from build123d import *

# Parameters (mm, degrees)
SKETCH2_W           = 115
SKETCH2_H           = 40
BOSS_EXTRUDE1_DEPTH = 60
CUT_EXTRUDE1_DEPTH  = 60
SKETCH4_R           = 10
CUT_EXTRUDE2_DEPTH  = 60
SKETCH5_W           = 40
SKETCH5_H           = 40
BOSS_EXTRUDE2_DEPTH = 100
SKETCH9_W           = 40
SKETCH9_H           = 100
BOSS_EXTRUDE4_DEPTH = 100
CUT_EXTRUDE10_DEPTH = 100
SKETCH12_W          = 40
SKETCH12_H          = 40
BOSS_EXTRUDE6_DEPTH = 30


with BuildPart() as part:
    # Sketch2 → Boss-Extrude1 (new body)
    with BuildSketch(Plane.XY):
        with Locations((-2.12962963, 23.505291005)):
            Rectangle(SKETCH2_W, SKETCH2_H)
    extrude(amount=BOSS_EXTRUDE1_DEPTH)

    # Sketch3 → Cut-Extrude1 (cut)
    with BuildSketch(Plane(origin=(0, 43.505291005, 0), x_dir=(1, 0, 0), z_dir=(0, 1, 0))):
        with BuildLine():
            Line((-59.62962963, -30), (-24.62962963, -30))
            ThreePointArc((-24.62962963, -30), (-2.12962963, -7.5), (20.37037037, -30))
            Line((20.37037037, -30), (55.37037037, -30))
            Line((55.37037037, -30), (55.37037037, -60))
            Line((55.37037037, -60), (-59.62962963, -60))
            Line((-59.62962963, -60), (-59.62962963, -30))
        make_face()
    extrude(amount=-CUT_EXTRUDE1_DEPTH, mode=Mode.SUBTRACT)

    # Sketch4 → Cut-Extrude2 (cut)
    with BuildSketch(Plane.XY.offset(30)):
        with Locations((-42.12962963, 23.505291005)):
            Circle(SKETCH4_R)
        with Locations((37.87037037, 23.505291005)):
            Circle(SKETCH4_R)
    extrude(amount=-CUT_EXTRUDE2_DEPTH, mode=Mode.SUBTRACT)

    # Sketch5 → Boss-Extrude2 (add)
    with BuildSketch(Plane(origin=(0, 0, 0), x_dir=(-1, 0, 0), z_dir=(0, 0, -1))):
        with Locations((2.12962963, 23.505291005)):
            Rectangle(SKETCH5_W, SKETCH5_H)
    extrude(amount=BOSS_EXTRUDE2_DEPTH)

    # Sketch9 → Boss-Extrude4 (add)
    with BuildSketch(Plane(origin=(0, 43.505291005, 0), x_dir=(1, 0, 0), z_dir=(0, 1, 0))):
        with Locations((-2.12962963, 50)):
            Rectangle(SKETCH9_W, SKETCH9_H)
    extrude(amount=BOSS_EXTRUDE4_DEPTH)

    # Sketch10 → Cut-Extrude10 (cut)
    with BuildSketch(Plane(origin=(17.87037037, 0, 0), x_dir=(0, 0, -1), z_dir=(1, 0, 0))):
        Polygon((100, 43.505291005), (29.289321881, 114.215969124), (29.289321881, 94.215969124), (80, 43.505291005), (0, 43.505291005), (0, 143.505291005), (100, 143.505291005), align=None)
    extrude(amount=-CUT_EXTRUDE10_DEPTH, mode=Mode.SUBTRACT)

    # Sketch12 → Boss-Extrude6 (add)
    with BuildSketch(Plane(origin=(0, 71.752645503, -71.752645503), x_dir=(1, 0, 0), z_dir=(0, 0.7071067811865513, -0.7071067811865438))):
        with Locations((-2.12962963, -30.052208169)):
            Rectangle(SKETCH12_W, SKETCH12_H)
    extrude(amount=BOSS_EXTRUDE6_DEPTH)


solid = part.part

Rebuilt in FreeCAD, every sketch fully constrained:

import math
import FreeCAD as App
import Part
import Sketcher
Q = App.Units.Quantity


def add_polygon(sketch, points):
    """Adds a closed chain of lines whose ends are joined by coincident constraints."""
    first, n = sketch.GeometryCount, len(points)
    for a, b in zip(points, points[1:] + points[:1]):
        sketch.addGeometry(Part.LineSegment(App.Vector(*a, 0), App.Vector(*b, 0)), False)
    for i in range(n):
        sketch.addConstraint(Sketcher.Constraint("Coincident", first + i, 2, first + (i + 1) % n, 1))

doc = App.newDocument("Part")
body = doc.addObject("PartDesign::Body", "Body")

sketch1 = body.newObject("Sketcher::SketchObject", "Sketch")
sketch1.AttachmentSupport = (doc.getObject("XY_Plane"), [""])
sketch1.MapMode = "FlatFace"
add_polygon(sketch1, [(-59.62963, 43.505291), (-59.62963, 3.505291), (55.37037, 3.505291), (55.37037, 43.505291)])
sketch1.addConstraint([
    Sketcher.Constraint("Vertical", 0),
    Sketcher.Constraint("Horizontal", 1),
    Sketcher.Constraint("Vertical", 2),
    Sketcher.Constraint("Horizontal", 3),
    Sketcher.Constraint("DistanceX", 1, 1, 1, 2, Q("115 mm")),
    Sketcher.Constraint("DistanceY", 0, 2, 0, 1, Q("40 mm")),
    Sketcher.Constraint("DistanceX", 0, 2, -1, 1, Q("59.62963 mm")),
    Sketcher.Constraint("DistanceY", -1, 1, 0, 2, Q("3.505291 mm")),
])
pad1 = body.newObject("PartDesign::Pad", "Pad")
pad1.Profile = sketch1
pad1.Length = 60

sketch2 = body.newObject("Sketcher::SketchObject", "Sketch001")
sketch2.AttachmentSupport = (doc.getObject("XZ_Plane"), [""])
sketch2.MapMode = "FlatFace"
sketch2.AttachmentOffset = App.Placement(App.Vector(0, 0, -43.505291), App.Rotation())
sketch2.addGeometry([
    Part.LineSegment(App.Vector(-24.62963, 30, 0), App.Vector(-59.62963, 30, 0)),
    Part.LineSegment(App.Vector(-59.62963, 30, 0), App.Vector(-59.62963, 60, 0)),
    Part.LineSegment(App.Vector(-59.62963, 60, 0), App.Vector(55.37037, 60, 0)),
    Part.LineSegment(App.Vector(55.37037, 60, 0), App.Vector(55.37037, 30, 0)),
    Part.LineSegment(App.Vector(55.37037, 30, 0), App.Vector(20.37037, 30, 0)),
    Part.ArcOfCircle(Part.Circle(App.Vector(-2.12963, 30, 0), App.Vector(0, 0, 1), 22.5), math.radians(180), math.radians(360)),
], False)
sketch2.addConstraint([
    Sketcher.Constraint("Coincident", 0, 2, 1, 1),
    Sketcher.Constraint("Coincident", 1, 2, 2, 1),
    Sketcher.Constraint("Coincident", 2, 2, 3, 1),
    Sketcher.Constraint("Coincident", 3, 2, 4, 1),
    Sketcher.Constraint("Coincident", 4, 2, 5, 2),
    Sketcher.Constraint("Coincident", 5, 1, 0, 1),
    Sketcher.Constraint("Horizontal", 0),
    Sketcher.Constraint("Vertical", 1),
    Sketcher.Constraint("Horizontal", 2),
    Sketcher.Constraint("Vertical", 3),
    Sketcher.Constraint("Horizontal", 4),
    Sketcher.Constraint("Horizontal", 5, 3, 0, 2),
    Sketcher.Constraint("Horizontal", 0, 2, 3, 2),
    Sketcher.Constraint("Equal", 0, 4),
    Sketcher.Constraint("Radius", 5, Q("22.5 mm")),
    Sketcher.Constraint("DistanceX", 0, 2, 0, 1, Q("35 mm")),
    Sketcher.Constraint("DistanceY", 1, 1, 1, 2, Q("30 mm")),
    Sketcher.Constraint("DistanceY", -1, 1, 5, 3, Q("30 mm")),
    Sketcher.Constraint("DistanceX", 5, 3, -1, 1, Q("2.12963 mm")),
])
pocket1 = body.newObject("PartDesign::Pocket", "Pocket")
pocket1.Profile = sketch2
pocket1.Length = 60
pocket1.Reversed = True

sketch3 = body.newObject("Sketcher::SketchObject", "Sketch002")
sketch3.AttachmentSupport = (doc.getObject("XY_Plane"), [""])
sketch3.MapMode = "FlatFace"
sketch3.AttachmentOffset = App.Placement(App.Vector(0, 0, 30), App.Rotation())
sketch3.addGeometry([
    Part.Circle(App.Vector(-42.12963, 23.505291, 0), App.Vector(0, 0, 1), 10),
    Part.Circle(App.Vector(37.87037, 23.505291, 0), App.Vector(0, 0, 1), 10),
], False)
sketch3.addConstraint([
    Sketcher.Constraint("Equal", 0, 1),
    Sketcher.Constraint("Horizontal", 0, 3, 1, 3),
    Sketcher.Constraint("Diameter", 0, Q("20 mm")),
    Sketcher.Constraint("DistanceX", 0, 3, 1, 3, Q("80 mm")),
    Sketcher.Constraint("DistanceX", 0, 3, -1, 1, Q("42.12963 mm")),
    Sketcher.Constraint("DistanceY", -1, 1, 0, 3, Q("23.505291 mm")),
])
pocket2 = body.newObject("PartDesign::Pocket", "Pocket001")
pocket2.Profile = sketch3
pocket2.Length = 60

sketch4 = body.newObject("Sketcher::SketchObject", "Sketch003")
sketch4.AttachmentSupport = (doc.getObject("XY_Plane"), [""])
sketch4.MapMode = "FlatFace"
add_polygon(sketch4, [(17.87037, 43.505291), (17.87037, 3.505291), (-22.12963, 3.505291), (-22.12963, 43.505291)])
sketch4.addConstraint([
    Sketcher.Constraint("Vertical", 0),
    Sketcher.Constraint("Horizontal", 1),
    Sketcher.Constraint("Vertical", 2),
    Sketcher.Constraint("Horizontal", 3),
    Sketcher.Constraint("Equal", 3, 0),
    Sketcher.Constraint("DistanceX", 1, 2, 1, 1, Q("40 mm")),
    Sketcher.Constraint("DistanceX", -1, 1, 0, 2, Q("17.87037 mm")),
    Sketcher.Constraint("DistanceY", -1, 1, 0, 2, Q("3.505291 mm")),
])
pad2 = body.newObject("PartDesign::Pad", "Pad001")
pad2.Profile = sketch4
pad2.Length = 100
pad2.Reversed = True

sketch5 = body.newObject("Sketcher::SketchObject", "Sketch004")
sketch5.AttachmentSupport = (doc.getObject("XZ_Plane"), [""])
sketch5.MapMode = "FlatFace"
sketch5.AttachmentOffset = App.Placement(App.Vector(0, 0, -43.505291), App.Rotation())
add_polygon(sketch5, [(-22.12963, -100), (-22.12963, 0), (17.87037, 0), (17.87037, -100)])
sketch5.addConstraint([
    Sketcher.Constraint("Vertical", 0),
    Sketcher.Constraint("Horizontal", 1),
    Sketcher.Constraint("Vertical", 2),
    Sketcher.Constraint("Horizontal", 3),
    Sketcher.Constraint("PointOnObject", 0, 2, -1),
    Sketcher.Constraint("DistanceX", 1, 1, 1, 2, Q("40 mm")),
    Sketcher.Constraint("DistanceY", 0, 1, 0, 2, Q("100 mm")),
    Sketcher.Constraint("DistanceX", 0, 2, -1, 1, Q("22.12963 mm")),
])
pad3 = body.newObject("PartDesign::Pad", "Pad002")
pad3.Profile = sketch5
pad3.Length = 100
pad3.Reversed = True

sketch6 = body.newObject("Sketcher::SketchObject", "Sketch005")
sketch6.AttachmentSupport = (doc.getObject("YZ_Plane"), [""])
sketch6.MapMode = "FlatFace"
sketch6.AttachmentOffset = App.Placement(App.Vector(0, 0, 17.87037), App.Rotation())
add_polygon(sketch6, [(114.215969, -29.289322), (43.505291, -100), (143.505291, -100), (143.505291, 0), (43.505291, 0), (43.505291, -80), (94.215969, -29.289322)])
sketch6.addConstraint([
    Sketcher.Constraint("Horizontal", 1),
    Sketcher.Constraint("Vertical", 2),
    Sketcher.Constraint("Horizontal", 3),
    Sketcher.Constraint("Vertical", 4),
    Sketcher.Constraint("Horizontal", 6),
    Sketcher.Constraint("PointOnObject", 2, 2, -1),
    Sketcher.Constraint("Parallel", 0, 5),
    Sketcher.Constraint("Vertical", 0, 2, 3, 2),
    Sketcher.Constraint("Equal", 3, 2),
    Sketcher.Constraint("DistanceX", 1, 1, 1, 2, Q("100 mm")),
    Sketcher.Constraint("DistanceX", 6, 1, 6, 2, Q("20 mm")),
    Sketcher.Constraint("DistanceY", 4, 2, 4, 1, Q("80 mm")),
    Sketcher.Constraint("Distance", 0, Q("100 mm")),
    Sketcher.Constraint("DistanceX", -1, 1, 0, 2, Q("43.505291 mm")),
])
pocket3 = body.newObject("PartDesign::Pocket", "Pocket002")
pocket3.Profile = sketch6
pocket3.Length = 100

sketch7 = body.newObject("Sketcher::SketchObject", "Sketch006")
sketch7.Placement = App.Placement(App.Vector(0, 71.752646, -71.752646), App.Rotation(App.Vector(1, 0, 0), App.Vector(0, -0.707106781, -0.707106781), App.Vector(0, 0.707106781, -0.707106781), "ZXY"))
add_polygon(sketch7, [(-22.12963, -10.052208), (-22.12963, -50.052208), (17.87037, -50.052208), (17.87037, -10.052208)])
sketch7.addConstraint([
    Sketcher.Constraint("Vertical", 0),
    Sketcher.Constraint("Horizontal", 1),
    Sketcher.Constraint("Vertical", 2),
    Sketcher.Constraint("Horizontal", 3),
    Sketcher.Constraint("Equal", 3, 0),
    Sketcher.Constraint("DistanceX", 1, 1, 1, 2, Q("40 mm")),
    Sketcher.Constraint("DistanceX", 0, 2, -1, 1, Q("22.12963 mm")),
    Sketcher.Constraint("DistanceY", 0, 2, -1, 1, Q("50.052208 mm")),
])
pad4 = body.newObject("PartDesign::Pad", "Pad003")
pad4.Profile = sketch7
pad4.Length = 30

doc.recompute()
